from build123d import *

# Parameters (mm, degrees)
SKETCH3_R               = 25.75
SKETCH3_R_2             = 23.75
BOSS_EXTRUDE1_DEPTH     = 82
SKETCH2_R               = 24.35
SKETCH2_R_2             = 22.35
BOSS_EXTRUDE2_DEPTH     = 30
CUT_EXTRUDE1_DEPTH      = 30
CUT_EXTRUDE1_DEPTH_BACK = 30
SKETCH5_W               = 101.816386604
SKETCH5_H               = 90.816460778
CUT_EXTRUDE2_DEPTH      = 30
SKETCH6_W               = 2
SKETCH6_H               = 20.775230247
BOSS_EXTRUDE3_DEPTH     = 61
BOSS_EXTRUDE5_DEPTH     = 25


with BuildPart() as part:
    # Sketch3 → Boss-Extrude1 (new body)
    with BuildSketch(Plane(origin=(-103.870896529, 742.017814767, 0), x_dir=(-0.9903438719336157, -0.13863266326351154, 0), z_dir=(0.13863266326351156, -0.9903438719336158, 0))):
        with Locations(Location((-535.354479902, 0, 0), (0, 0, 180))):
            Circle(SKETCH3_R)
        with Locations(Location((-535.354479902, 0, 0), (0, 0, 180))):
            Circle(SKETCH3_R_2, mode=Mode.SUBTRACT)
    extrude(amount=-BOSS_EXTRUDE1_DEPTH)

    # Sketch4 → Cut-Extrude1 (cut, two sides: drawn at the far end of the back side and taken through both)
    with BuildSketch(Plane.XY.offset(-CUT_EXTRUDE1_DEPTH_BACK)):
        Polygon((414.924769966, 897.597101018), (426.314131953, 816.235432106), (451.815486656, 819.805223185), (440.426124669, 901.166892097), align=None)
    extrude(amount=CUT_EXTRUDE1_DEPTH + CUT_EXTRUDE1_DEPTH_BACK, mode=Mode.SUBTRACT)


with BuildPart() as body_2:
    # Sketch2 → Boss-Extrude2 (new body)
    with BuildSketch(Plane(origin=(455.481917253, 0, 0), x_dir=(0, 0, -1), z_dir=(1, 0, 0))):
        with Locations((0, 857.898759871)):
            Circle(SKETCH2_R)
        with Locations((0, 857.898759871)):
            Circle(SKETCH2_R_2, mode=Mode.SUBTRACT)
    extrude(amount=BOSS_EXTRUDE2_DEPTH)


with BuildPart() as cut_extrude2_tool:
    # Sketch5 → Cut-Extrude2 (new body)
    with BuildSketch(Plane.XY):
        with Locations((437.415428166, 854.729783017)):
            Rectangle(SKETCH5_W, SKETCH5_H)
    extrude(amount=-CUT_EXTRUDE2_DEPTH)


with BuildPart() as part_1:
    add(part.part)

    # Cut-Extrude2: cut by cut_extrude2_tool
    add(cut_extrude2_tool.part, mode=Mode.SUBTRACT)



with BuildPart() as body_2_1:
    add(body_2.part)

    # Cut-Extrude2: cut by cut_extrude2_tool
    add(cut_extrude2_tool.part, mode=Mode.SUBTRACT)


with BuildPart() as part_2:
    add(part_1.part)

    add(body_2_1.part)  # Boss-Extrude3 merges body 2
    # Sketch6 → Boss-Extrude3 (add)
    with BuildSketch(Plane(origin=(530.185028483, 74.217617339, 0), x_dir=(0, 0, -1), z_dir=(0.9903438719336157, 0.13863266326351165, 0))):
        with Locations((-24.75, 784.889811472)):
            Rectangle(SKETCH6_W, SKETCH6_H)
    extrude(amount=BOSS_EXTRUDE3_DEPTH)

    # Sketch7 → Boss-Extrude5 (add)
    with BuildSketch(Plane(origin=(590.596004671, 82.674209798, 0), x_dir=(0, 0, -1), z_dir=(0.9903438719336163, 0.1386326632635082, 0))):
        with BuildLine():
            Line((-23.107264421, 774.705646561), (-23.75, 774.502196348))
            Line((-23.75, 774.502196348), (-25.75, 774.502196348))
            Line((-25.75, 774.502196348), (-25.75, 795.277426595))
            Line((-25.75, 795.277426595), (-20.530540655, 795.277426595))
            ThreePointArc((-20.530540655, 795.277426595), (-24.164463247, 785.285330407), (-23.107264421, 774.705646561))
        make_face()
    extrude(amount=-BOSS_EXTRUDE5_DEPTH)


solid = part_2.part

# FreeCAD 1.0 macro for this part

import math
import FreeCAD as App
import Part
import Sketcher

V = App.Vector
Q = App.Units.Quantity


def add_polygon(sketch, points):
    """Adds a closed chain of lines whose ends are joined by coincident constraints."""
    first, n = sketch.GeometryCount, len(points)
    for a, b in zip(points, points[1:] + points[:1]):
        sketch.addGeometry(Part.LineSegment(App.Vector(*a, 0), App.Vector(*b, 0)), False)
    for i in range(n):
        sketch.addConstraint(Sketcher.Constraint("Coincident", first + i, 2, first + (i + 1) % n, 1))

doc = App.newDocument("Part")
body = doc.addObject("PartDesign::Body", "Body")

# Sketch on an angled plane
sketch1 = body.newObject("Sketcher::SketchObject", "Sketch")
sketch1.Placement = App.Placement(V(-103.870897, 742.017815, 0), App.Rotation(V(-0.990343872, -0.138632663, 0), V(0, 0, -1), V(0.138632663, -0.990343872, 0), "ZXY"))
sketch1.addGeometry([
    Part.Circle(V(-535.35448, 0, 0), V(0, 0, 1), 25.75),
    Part.Circle(V(-535.35448, 0, 0), V(0, 0, 1), 23.75),
], False)
sketch1.addConstraint([
    Sketcher.Constraint("Coincident", 1, 3, 0, 3),
    Sketcher.Constraint("PointOnObject", 0, 3, -1),
    Sketcher.Constraint("Diameter", 0, Q("51.5 mm")),
    Sketcher.Constraint("Diameter", 1, Q("47.5 mm")),
    Sketcher.Constraint("DistanceX", 0, 3, -1, 1, Q("535.35448 mm")),
])
pad1 = body.newObject("PartDesign::Pad", "Pad")
pad1.Profile = sketch1
pad1.Length = 82
pad1.Reversed = True

# Sketch on XY plane
sketch2 = body.newObject("Sketcher::SketchObject", "Sketch001")
sketch2.AttachmentSupport = (doc.getObject("XY_Plane"), [""])
sketch2.MapMode = "FlatFace"
add_polygon(sketch2, [(414.92477, 897.597101), (426.314132, 816.235432), (451.815487, 819.805223), (440.426125, 901.166892)])  # lines 0-3
sketch2.addConstraint([
    Sketcher.Constraint("Perpendicular", 0, 1),
    Sketcher.Constraint("Perpendicular", 1, 2),
    Sketcher.Constraint("Perpendicular", 2, 3),
    Sketcher.Constraint("Distance", 1, Q("25.75 mm")),
    Sketcher.Constraint("DistanceY", -1, 1, 3, 2, Q("897.597101 mm")),
    Sketcher.Constraint("DistanceX", -1, 1, 0, 2, Q("426.314132 mm")),
    Sketcher.Constraint("DistanceX", -1, 1, 3, 2, Q("414.92477 mm")),
    Sketcher.Constraint("DistanceY", 0, 2, 1, 2, Q("3.569791 mm")),
])
pocket1 = body.newObject("PartDesign::Pocket", "Pocket")
pocket1.Profile = sketch2
pocket1.Type = "ThroughAll"
pocket1.Midplane = True
body2 = doc.addObject("PartDesign::Body", "Body001")

# Sketch on YZ plane
sketch3 = body2.newObject("Sketcher::SketchObject", "Sketch002")
sketch3.AttachmentSupport = (doc.getObject("YZ_Plane001"), [""])
sketch3.MapMode = "FlatFace"
sketch3.AttachmentOffset = App.Placement(V(0, 0, 455.481917), App.Rotation())
sketch3.addGeometry([
    Part.Circle(V(857.89876, 0, 0), V(0, 0, 1), 24.35),
    Part.Circle(V(857.89876, 0, 0), V(0, 0, 1), 22.35),
], False)
sketch3.addConstraint([
    Sketcher.Constraint("Coincident", 1, 3, 0, 3),
    Sketcher.Constraint("PointOnObject", 0, 3, -1),
    Sketcher.Constraint("Diameter", 0, Q("48.7 mm")),
    Sketcher.Constraint("Diameter", 1, Q("44.7 mm")),
    Sketcher.Constraint("DistanceX", -1, 1, 0, 3, Q("857.89876 mm")),
])
pad2 = body2.newObject("PartDesign::Pad", "Pad001")
pad2.Profile = sketch3
pad2.Length = 30
body3 = doc.addObject("PartDesign::Body", "Body002")

# Sketch on XY plane
sketch4 = body3.newObject("Sketcher::SketchObject", "Sketch003")
sketch4.AttachmentSupport = (doc.getObject("XY_Plane002"), [""])
sketch4.MapMode = "FlatFace"
add_polygon(sketch4, [(386.507235, 900.138013), (386.507235, 809.321553), (488.323621, 809.321553), (488.323621, 900.138013)])  # lines 0-3
sketch4.addConstraint([
    Sketcher.Constraint("Vertical", 0),
    Sketcher.Constraint("Horizontal", 1),
    Sketcher.Constraint("Vertical", 2),
    Sketcher.Constraint("Horizontal", 3),
    Sketcher.Constraint("DistanceY", 0, 2, 0, 1, Q("90.816461 mm")),
    Sketcher.Constraint("DistanceX", 1, 1, 1, 2, Q("101.816387 mm")),
    Sketcher.Constraint("DistanceX", -1, 1, 1, 2, Q("488.323621 mm")),
    Sketcher.Constraint("DistanceY", -1, 1, 0, 2, Q("809.321553 mm")),
])
pad3 = body3.newObject("PartDesign::Pad", "Pad002")
pad3.Profile = sketch4
pad3.Length = 30
pad3.Reversed = True
doc.recompute()

body4 = doc.addObject("PartDesign::Body", "Body003")
body4.BaseFeature = body3
boolean = body.newObject("PartDesign::Boolean", "Boolean")
boolean.Type = "Cut"
boolean.addObjects([body4])
doc.recompute()

boolean2 = body2.newObject("PartDesign::Boolean", "Boolean001")
boolean2.Type = "Cut"
boolean2.addObjects([body3])
body.AllowCompound = True
doc.recompute()

boolean3 = body.newObject("PartDesign::Boolean", "Boolean002")
boolean3.Type = "Fuse"
boolean3.addObjects([body2])

# Sketch on an angled plane
sketch5 = body.newObject("Sketcher::SketchObject", "Sketch004")
sketch5.Placement = App.Placement(V(530.185028, 74.217617, 0), App.Rotation(V(0, 0, -1), V(-0.138632663, 0.990343872, 0), V(0.990343872, 0.138632663, 0), "ZXY"))
add_polygon(sketch5, [(-25.75, 795.277427), (-25.75, 774.502196), (-23.75, 774.502196), (-23.75, 795.277427)])  # lines 0-3
sketch5.addConstraint([
    Sketcher.Constraint("Vertical", 0),
    Sketcher.Constraint("Horizontal", 1),
    Sketcher.Constraint("Vertical", 2),
    Sketcher.Constraint("Horizontal", 3),
    Sketcher.Constraint("DistanceX", 1, 1, 1, 2, Q("2 mm")),
    Sketcher.Constraint("DistanceX", 0, 2, -1, 1, Q("25.75 mm")),
    Sketcher.Constraint("DistanceY", 0, 2, 0, 1, Q("20.77523 mm")),
    Sketcher.Constraint("DistanceY", -1, 1, 0, 2, Q("774.502196 mm")),
])
pad4 = body.newObject("PartDesign::Pad", "Pad003")
pad4.Profile = sketch5
pad4.Length = 61

# Sketch on an angled plane
sketch6 = body.newObject("Sketcher::SketchObject", "Sketch005")
sketch6.Placement = App.Placement(V(590.596005, 82.67421, 0), App.Rotation(V(0, 0, -1), V(-0.138632663, 0.990343872, 0), V(0.990343872, 0.138632663, 0), "ZXY"))
sketch6.addGeometry([
    Part.LineSegment(V(-23.75, 774.502196, 0), V(-23.107264, 774.705647, 0)),  # 0
    Part.ArcOfCircle(Part.Circle(V(-0.43854, 782.313534, 0), V(0, 0, 1), 23.911316), math.radians(147.168817), math.radians(198.55235)),  # 1
    Part.LineSegment(V(-20.530541, 795.277427, 0), V(-25.75, 795.277427, 0)),  # 2
    Part.LineSegment(V(-25.75, 795.277427, 0), V(-25.75, 774.502196, 0)),  # 3
    Part.LineSegment(V(-25.75, 774.502196, 0), V(-23.75, 774.502196, 0)),  # 4
], False)
sketch6.addConstraint([
    Sketcher.Constraint("Coincident", 0, 2, 1, 2),
    Sketcher.Constraint("Coincident", 1, 1, 2, 1),
    Sketcher.Constraint("Coincident", 2, 2, 3, 1),
    Sketcher.Constraint("Coincident", 3, 2, 4, 1),
    Sketcher.Constraint("Coincident", 4, 2, 0, 1),
    Sketcher.Constraint("Horizontal", 2),
    Sketcher.Constraint("Vertical", 3),
    Sketcher.Constraint("Horizontal", 4),
    Sketcher.Constraint("DistanceX", 4, 1, 4, 2, Q("2 mm")),
    Sketcher.Constraint("DistanceX", 2, 2, -1, 1, Q("25.75 mm")),
    Sketcher.Constraint("Radius", 1, Q("23.911316 mm")),
    Sketcher.Constraint("DistanceX", 1, 1, 1, 3, Q("20.092001 mm")),
    Sketcher.Constraint("DistanceX", 2, 2, 2, 1, Q("5.219459 mm")),
    Sketcher.Constraint("DistanceY", 3, 2, 3, 1, Q("20.77523 mm")),
    Sketcher.Constraint("DistanceY", 0, 2, 1, 1, Q("20.57178 mm")),
    Sketcher.Constraint("DistanceY", -1, 1, 1, 3, Q("782.313534 mm")),
])
pad5 = body.newObject("PartDesign::Pad", "Pad004")
pad5.Profile = sketch6
pad5.Length = 25
pad5.Reversed = True

doc.recompute()
